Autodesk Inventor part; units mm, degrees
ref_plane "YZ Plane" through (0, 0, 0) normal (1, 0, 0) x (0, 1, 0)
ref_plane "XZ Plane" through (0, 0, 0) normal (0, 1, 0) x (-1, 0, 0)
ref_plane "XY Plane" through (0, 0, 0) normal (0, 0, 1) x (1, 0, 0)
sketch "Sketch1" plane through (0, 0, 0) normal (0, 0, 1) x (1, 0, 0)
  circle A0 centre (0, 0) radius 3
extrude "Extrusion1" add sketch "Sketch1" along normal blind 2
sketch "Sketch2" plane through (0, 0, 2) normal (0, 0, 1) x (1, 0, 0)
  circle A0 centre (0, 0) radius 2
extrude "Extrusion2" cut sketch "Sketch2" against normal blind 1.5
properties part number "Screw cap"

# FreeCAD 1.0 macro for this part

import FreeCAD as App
import Part
import Sketcher
from FreeCAD import Vector

doc = App.newDocument("Part")
params = doc.addObject("Spreadsheet::Sheet", "Params")
for row, (alias, value) in enumerate([
    ("sketch1_diameter", "6 mm"),
    ("pad1_length", "2 mm"),
    ("sketch2_diameter", "4 mm"),
    ("pocket1_length", "1.5 mm"),
], start=1):
    params.set(f"A{row}", alias)
    params.set(f"B{row}", "=" + value)
    params.setAlias(f"B{row}", alias)

body = doc.addObject("PartDesign::Body", "Body")

sketch1 = body.newObject("Sketcher::SketchObject", "Sketch")
sketch1.AttachmentSupport = (doc.getObject("XY_Plane"), [""])
sketch1.MapMode = "FlatFace"
sketch1.addGeometry(Part.Circle(Vector(0, 0, 0), Vector(0, 0, 1), 3), False)
sketch1.addConstraint(Sketcher.Constraint("Coincident", 0, 3, -1, 1))
sketch1.addConstraint(Sketcher.Constraint("Diameter", 0, 6.0))
sketch1.setExpression("Constraints[1]", "Params.sketch1_diameter")
pad1 = body.newObject("PartDesign::Pad", "Pad")
pad1.Profile = sketch1
pad1.setExpression("Length", "Params.pad1_length")

sketch2 = body.newObject("Sketcher::SketchObject", "Sketch001")
sketch2.AttachmentSupport = (doc.getObject("XY_Plane"), [""])
sketch2.MapMode = "FlatFace"
sketch2.AttachmentOffset = App.Placement(Vector(0, 0, 2), App.Rotation())
sketch2.addGeometry(Part.Circle(Vector(0, 0, 0), Vector(0, 0, 1), 2), False)
sketch2.addConstraint(Sketcher.Constraint("Coincident", 0, 3, -1, 1))
sketch2.addConstraint(Sketcher.Constraint("Diameter", 0, 4.0))
sketch2.setExpression("Constraints[1]", "Params.sketch2_diameter")
pocket1 = body.newObject("PartDesign::Pocket", "Pocket")
pocket1.Profile = sketch2
pocket1.setExpression("Length", "Params.pocket1_length")

doc.recompute()
